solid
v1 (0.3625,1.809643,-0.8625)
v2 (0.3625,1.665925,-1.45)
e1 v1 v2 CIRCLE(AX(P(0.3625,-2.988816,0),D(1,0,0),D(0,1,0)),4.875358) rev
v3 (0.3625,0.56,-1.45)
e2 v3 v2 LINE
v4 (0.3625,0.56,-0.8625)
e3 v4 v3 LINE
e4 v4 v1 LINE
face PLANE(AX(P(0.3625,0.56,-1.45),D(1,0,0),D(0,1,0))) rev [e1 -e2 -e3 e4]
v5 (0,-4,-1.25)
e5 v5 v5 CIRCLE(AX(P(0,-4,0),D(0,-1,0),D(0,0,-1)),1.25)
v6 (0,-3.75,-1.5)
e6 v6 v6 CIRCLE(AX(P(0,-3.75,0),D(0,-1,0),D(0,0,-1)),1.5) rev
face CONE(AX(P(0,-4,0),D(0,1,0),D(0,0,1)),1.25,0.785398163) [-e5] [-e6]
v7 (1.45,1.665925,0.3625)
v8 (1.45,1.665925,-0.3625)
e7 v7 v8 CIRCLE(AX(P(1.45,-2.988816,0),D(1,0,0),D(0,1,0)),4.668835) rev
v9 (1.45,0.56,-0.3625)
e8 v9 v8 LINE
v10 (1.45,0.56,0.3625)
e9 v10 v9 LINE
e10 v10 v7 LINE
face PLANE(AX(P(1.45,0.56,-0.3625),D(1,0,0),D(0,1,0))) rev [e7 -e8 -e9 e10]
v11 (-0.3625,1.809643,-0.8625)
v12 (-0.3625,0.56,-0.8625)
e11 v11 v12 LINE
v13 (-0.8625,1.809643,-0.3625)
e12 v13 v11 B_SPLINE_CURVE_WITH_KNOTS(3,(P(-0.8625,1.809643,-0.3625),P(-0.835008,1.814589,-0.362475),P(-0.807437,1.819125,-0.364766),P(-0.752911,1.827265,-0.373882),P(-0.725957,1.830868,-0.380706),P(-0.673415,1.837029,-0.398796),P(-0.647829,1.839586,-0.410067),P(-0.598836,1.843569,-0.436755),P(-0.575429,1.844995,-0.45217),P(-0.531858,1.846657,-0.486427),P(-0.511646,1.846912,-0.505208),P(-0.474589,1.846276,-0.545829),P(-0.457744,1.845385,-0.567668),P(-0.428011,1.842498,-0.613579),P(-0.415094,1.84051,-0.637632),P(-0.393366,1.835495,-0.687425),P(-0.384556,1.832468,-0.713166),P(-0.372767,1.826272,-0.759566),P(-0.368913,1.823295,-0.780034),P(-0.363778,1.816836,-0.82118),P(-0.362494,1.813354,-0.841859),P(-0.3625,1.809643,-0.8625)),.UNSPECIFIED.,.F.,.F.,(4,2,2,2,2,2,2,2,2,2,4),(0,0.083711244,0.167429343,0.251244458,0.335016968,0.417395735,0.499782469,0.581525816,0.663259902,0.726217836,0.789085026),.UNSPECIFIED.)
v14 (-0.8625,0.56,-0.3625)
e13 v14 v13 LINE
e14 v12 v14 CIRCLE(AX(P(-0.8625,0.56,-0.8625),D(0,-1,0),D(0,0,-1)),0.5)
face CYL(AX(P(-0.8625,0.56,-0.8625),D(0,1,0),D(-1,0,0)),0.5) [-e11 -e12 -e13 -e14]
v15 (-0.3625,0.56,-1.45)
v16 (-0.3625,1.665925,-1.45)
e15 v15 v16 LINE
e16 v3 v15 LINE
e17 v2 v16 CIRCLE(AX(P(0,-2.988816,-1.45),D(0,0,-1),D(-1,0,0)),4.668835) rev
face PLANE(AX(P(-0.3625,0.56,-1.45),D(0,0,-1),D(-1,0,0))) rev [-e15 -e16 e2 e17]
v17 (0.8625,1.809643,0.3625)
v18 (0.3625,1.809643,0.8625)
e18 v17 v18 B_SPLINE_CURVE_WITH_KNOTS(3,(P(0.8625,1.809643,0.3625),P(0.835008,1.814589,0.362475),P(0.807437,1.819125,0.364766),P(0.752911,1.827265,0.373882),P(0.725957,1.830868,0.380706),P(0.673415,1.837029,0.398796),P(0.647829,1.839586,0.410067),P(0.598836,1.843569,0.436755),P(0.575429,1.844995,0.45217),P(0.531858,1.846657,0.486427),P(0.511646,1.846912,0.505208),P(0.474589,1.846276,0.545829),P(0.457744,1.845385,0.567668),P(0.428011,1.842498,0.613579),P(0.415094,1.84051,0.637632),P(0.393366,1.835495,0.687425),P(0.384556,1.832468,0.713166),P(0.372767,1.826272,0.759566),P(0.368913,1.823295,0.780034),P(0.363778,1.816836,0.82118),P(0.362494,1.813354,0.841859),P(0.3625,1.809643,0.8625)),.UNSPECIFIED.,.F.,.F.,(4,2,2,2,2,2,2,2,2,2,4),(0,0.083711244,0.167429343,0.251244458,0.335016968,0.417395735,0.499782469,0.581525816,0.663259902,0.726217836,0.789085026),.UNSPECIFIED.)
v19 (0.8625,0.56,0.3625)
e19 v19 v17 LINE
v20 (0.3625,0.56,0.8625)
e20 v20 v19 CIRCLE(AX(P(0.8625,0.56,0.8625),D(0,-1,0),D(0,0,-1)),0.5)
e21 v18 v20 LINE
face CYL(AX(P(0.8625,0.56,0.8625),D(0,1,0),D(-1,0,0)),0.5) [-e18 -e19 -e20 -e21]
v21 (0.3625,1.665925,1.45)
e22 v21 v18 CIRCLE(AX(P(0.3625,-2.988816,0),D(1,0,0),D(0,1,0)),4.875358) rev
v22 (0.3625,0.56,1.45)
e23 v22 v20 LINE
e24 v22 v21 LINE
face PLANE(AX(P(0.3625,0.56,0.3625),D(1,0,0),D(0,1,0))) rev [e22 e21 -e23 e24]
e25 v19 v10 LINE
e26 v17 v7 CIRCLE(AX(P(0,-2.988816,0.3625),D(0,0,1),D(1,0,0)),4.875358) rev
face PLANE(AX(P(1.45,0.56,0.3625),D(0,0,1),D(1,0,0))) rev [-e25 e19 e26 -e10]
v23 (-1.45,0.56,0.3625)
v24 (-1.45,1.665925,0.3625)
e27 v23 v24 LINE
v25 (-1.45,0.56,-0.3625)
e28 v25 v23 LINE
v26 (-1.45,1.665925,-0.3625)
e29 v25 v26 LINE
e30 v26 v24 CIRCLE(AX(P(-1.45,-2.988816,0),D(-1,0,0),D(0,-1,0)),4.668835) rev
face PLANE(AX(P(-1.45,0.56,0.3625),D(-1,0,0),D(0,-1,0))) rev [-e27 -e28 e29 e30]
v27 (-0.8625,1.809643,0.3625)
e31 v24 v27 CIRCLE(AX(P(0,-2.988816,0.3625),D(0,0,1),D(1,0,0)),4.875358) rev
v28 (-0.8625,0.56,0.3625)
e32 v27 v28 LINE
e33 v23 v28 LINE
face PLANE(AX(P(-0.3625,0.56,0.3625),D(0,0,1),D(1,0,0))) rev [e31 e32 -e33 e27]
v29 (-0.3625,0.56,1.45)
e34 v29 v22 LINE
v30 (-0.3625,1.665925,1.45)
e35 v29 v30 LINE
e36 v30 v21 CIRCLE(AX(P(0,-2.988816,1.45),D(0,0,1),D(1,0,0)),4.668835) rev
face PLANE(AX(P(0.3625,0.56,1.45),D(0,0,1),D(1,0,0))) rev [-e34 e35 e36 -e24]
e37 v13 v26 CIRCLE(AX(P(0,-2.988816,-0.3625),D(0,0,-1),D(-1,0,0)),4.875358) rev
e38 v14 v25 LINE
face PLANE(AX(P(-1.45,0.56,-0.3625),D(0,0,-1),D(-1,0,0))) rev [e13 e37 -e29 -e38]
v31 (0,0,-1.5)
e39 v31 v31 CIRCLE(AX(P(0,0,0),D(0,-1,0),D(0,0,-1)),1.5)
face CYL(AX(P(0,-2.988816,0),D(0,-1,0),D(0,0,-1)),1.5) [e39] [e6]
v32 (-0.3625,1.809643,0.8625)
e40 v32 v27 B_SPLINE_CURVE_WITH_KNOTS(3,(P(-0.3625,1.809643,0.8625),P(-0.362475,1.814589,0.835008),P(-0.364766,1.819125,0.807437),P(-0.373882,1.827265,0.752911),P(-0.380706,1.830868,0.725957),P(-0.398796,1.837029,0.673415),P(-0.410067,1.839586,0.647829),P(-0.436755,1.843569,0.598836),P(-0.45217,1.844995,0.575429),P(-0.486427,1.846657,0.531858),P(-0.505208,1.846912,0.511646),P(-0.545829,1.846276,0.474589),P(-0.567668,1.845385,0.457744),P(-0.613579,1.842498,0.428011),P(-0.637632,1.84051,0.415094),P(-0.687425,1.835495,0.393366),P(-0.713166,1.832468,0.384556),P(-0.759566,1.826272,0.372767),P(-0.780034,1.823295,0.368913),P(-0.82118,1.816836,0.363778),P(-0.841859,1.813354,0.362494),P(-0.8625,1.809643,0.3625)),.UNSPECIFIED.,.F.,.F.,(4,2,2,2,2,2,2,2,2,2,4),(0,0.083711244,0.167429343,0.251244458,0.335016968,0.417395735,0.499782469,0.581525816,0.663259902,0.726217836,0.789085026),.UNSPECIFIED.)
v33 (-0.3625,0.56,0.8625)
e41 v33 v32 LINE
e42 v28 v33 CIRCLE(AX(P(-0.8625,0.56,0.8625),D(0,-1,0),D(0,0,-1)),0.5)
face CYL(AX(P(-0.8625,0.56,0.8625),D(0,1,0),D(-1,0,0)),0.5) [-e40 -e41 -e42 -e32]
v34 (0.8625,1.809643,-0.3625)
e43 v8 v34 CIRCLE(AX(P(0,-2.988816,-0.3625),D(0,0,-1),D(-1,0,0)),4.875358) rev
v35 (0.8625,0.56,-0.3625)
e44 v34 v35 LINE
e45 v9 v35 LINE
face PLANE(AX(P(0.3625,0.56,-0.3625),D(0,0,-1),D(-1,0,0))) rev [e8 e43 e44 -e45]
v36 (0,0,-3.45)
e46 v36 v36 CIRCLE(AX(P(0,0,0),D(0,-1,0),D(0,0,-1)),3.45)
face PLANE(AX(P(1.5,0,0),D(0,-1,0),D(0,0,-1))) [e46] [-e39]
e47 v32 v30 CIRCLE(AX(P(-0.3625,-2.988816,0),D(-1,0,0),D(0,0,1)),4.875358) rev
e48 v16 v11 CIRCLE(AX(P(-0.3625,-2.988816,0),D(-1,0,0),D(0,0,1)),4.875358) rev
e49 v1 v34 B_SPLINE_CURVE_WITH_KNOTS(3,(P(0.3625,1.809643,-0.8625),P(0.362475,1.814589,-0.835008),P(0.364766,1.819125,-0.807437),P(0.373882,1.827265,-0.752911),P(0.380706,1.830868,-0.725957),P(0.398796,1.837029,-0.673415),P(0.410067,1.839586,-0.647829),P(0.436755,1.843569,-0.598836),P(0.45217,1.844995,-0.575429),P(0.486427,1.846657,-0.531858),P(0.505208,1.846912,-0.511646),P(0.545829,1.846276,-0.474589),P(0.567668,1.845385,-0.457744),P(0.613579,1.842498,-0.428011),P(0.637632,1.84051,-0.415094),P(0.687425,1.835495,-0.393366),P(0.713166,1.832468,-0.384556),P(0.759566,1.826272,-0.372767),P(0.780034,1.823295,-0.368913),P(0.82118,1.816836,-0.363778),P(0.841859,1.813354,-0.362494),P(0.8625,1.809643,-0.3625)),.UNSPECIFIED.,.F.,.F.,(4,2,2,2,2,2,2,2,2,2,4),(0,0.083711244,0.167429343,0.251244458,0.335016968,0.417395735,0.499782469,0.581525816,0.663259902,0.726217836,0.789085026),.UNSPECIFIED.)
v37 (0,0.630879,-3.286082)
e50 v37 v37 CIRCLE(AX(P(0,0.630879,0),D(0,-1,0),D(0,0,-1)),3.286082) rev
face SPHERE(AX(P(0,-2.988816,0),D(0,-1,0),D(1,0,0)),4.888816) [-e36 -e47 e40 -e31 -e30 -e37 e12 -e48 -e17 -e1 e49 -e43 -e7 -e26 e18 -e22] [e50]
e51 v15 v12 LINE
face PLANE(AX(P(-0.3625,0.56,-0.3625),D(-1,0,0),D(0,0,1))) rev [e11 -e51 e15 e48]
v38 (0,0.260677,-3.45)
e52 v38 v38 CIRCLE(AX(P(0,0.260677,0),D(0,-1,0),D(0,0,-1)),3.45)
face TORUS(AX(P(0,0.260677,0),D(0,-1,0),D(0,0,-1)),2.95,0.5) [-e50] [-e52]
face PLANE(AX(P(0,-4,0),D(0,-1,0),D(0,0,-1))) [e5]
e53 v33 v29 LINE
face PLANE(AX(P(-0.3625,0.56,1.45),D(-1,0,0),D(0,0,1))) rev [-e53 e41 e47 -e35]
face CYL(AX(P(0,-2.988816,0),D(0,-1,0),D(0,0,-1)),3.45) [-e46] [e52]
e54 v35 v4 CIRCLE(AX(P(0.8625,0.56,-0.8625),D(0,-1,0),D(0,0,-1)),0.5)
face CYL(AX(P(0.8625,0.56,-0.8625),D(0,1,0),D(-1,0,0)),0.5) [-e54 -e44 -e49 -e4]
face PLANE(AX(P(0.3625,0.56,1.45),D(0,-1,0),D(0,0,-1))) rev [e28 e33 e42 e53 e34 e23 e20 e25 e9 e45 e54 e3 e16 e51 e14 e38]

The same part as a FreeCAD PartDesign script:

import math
import FreeCAD as App
import Part
import Sketcher

V = App.Vector


def edges_at(feature, points):
    """Names of the edges that pass closest to the given points."""
    edges = feature.Shape.Edges
    near = lambda p: min(range(len(edges)), key=lambda i: edges[i].distToShape(Part.Vertex(*p))[0])
    return sorted({f"Edge{near(p) + 1}" for p in points})


def add_polygon(sketch, points):
    """Adds a closed chain of lines whose ends are joined by coincident constraints."""
    first, n = sketch.GeometryCount, len(points)
    for a, b in zip(points, points[1:] + points[:1]):
        sketch.addGeometry(Part.LineSegment(App.Vector(*a, 0), App.Vector(*b, 0)), False)
    for i in range(n):
        sketch.addConstraint(Sketcher.Constraint("Coincident", first + i, 2, first + (i + 1) % n, 1))

doc = App.newDocument("Part")
body = doc.addObject("PartDesign::Body", "Body")

sketch1 = body.newObject("Sketcher::SketchObject", "Sketch")
sketch1.AttachmentSupport = (doc.getObject("XY_Plane"), [""])
sketch1.MapMode = "FlatFace"
sketch1.addGeometry([
    Part.LineSegment(V(0, -4, 0), V(1.5, -4, 0)),
    Part.LineSegment(V(1.5, -4, 0), V(1.5, 0, 0)),
    Part.LineSegment(V(1.5, 0, 0), V(3.45, 0, 0)),
    Part.LineSegment(V(3.45, 0, 0), V(3.45, 0.475, 0)),
    Part.ArcOfCircle(Part.Circle(V(0, -2.988816, 0), V(0, 0, 1), 4.888816), math.radians(45.114493), math.radians(90)),
    Part.LineSegment(V(0, 1.9, 0), V(0, -4, 0)),
], False)
sketch1.addConstraint([
    Sketcher.Constraint("Coincident", 0, 2, 1, 1),
    Sketcher.Constraint("Coincident", 1, 2, 2, 1),
    Sketcher.Constraint("Coincident", 2, 2, 3, 1),
    Sketcher.Constraint("Coincident", 3, 2, 4, 1),
    Sketcher.Constraint("Coincident", 4, 2, 5, 1),
    Sketcher.Constraint("Coincident", 5, 2, 0, 1),
    Sketcher.Constraint("Horizontal", 0),
    Sketcher.Constraint("Vertical", 1),
    Sketcher.Constraint("Horizontal", 2),
    Sketcher.Constraint("Vertical", 3),
    Sketcher.Constraint("Vertical", 5),
    Sketcher.Constraint("PointOnObject", 4, 3, -2),
    Sketcher.Constraint("PointOnObject", 1, 2, -1),
    Sketcher.Constraint("PointOnObject", 4, 2, -2),
    Sketcher.Constraint("DistanceY", 1, 1, 1, 2, 4.0),
    Sketcher.Constraint("DistanceX", 0, 1, 0, 2, 1.5),
    Sketcher.Constraint("DistanceY", 5, 2, 5, 1, 5.9),
    Sketcher.Constraint("DistanceX", 2, 1, 2, 2, 1.95),
    Sketcher.Constraint("DistanceY", 3, 1, 3, 2, 0.475),
])
revolution = body.newObject("PartDesign::Revolution", "Revolution")
revolution.Profile = sketch1
revolution.ReferenceAxis = (sketch1, ["V_Axis"])
revolution.Angle = 360

sketch2 = body.newObject("Sketcher::SketchObject", "Sketch001")
sketch2.AttachmentSupport = (doc.getObject("XZ_Plane"), [""])
sketch2.MapMode = "FlatFace"
sketch2.AttachmentOffset = App.Placement(V(0, 0, -1.9), App.Rotation())
add_polygon(sketch2, [(-0.3625, 1.45), (0.3625, 1.45), (0.3625, 0.3625), (1.45, 0.3625), (1.45, -0.3625), (0.3625, -0.3625), (0.3625, -1.45), (-0.3625, -1.45), (-0.3625, -0.3625), (-1.45, -0.3625), (-1.45, 0.3625), (-0.3625, 0.3625)])
sketch2.addConstraint([
    Sketcher.Constraint("Horizontal", 0),
    Sketcher.Constraint("Vertical", 1),
    Sketcher.Constraint("Horizontal", 2),
    Sketcher.Constraint("Vertical", 3),
    Sketcher.Constraint("Horizontal", 4),
    Sketcher.Constraint("Vertical", 5),
    Sketcher.Constraint("Horizontal", 6),
    Sketcher.Constraint("Vertical", 7),
    Sketcher.Constraint("Horizontal", 8),
    Sketcher.Constraint("Vertical", 9),
    Sketcher.Constraint("Horizontal", 10),
    Sketcher.Constraint("Vertical", 11),
    Sketcher.Constraint("Symmetric", 0, 2, 6, 2, -1, 1),
    Sketcher.Constraint("Symmetric", 2, 2, 8, 2, -1, 1),
    Sketcher.Constraint("Symmetric", 4, 2, 10, 2, -1, 1),
    Sketcher.Constraint("Symmetric", 4, 2, 7, 2, -2),
    Sketcher.Constraint("Equal", 10, 1),
    Sketcher.Constraint("Equal", 6, 3),
    Sketcher.Constraint("DistanceY", 5, 2, 0, 2, 2.9),
    Sketcher.Constraint("DistanceX", 0, 1, 0, 2, 0.725),
])
pocket1 = body.newObject("PartDesign::Pocket", "Pocket")
pocket1.Profile = sketch2
pocket1.Length = 1.34
pocket1.Reversed = True
doc.recompute()

chamfer = body.newObject("PartDesign::Chamfer", "Chamfer")
chamfer.Base = (pocket1, edges_at(pocket1, [(-1.5, -4, 0)]))
chamfer.Size = 0.25
doc.recompute()

fillet = body.newObject("PartDesign::Fillet", "Fillet")
fillet.Base = (chamfer, edges_at(chamfer, [(-3.45, 0.475, 0)]))
fillet.Radius = 0.5
doc.recompute()

fillet2 = body.newObject("PartDesign::Fillet", "Fillet001")
fillet2.Base = (fillet, edges_at(fillet, [
    (0.362, 1.217, 0.362),
    (-0.362, 1.217, 0.362),
    (-0.362, 1.217, -0.362),
    (0.362, 1.217, -0.362),
]))
fillet2.Radius = 0.5

doc.recompute()
